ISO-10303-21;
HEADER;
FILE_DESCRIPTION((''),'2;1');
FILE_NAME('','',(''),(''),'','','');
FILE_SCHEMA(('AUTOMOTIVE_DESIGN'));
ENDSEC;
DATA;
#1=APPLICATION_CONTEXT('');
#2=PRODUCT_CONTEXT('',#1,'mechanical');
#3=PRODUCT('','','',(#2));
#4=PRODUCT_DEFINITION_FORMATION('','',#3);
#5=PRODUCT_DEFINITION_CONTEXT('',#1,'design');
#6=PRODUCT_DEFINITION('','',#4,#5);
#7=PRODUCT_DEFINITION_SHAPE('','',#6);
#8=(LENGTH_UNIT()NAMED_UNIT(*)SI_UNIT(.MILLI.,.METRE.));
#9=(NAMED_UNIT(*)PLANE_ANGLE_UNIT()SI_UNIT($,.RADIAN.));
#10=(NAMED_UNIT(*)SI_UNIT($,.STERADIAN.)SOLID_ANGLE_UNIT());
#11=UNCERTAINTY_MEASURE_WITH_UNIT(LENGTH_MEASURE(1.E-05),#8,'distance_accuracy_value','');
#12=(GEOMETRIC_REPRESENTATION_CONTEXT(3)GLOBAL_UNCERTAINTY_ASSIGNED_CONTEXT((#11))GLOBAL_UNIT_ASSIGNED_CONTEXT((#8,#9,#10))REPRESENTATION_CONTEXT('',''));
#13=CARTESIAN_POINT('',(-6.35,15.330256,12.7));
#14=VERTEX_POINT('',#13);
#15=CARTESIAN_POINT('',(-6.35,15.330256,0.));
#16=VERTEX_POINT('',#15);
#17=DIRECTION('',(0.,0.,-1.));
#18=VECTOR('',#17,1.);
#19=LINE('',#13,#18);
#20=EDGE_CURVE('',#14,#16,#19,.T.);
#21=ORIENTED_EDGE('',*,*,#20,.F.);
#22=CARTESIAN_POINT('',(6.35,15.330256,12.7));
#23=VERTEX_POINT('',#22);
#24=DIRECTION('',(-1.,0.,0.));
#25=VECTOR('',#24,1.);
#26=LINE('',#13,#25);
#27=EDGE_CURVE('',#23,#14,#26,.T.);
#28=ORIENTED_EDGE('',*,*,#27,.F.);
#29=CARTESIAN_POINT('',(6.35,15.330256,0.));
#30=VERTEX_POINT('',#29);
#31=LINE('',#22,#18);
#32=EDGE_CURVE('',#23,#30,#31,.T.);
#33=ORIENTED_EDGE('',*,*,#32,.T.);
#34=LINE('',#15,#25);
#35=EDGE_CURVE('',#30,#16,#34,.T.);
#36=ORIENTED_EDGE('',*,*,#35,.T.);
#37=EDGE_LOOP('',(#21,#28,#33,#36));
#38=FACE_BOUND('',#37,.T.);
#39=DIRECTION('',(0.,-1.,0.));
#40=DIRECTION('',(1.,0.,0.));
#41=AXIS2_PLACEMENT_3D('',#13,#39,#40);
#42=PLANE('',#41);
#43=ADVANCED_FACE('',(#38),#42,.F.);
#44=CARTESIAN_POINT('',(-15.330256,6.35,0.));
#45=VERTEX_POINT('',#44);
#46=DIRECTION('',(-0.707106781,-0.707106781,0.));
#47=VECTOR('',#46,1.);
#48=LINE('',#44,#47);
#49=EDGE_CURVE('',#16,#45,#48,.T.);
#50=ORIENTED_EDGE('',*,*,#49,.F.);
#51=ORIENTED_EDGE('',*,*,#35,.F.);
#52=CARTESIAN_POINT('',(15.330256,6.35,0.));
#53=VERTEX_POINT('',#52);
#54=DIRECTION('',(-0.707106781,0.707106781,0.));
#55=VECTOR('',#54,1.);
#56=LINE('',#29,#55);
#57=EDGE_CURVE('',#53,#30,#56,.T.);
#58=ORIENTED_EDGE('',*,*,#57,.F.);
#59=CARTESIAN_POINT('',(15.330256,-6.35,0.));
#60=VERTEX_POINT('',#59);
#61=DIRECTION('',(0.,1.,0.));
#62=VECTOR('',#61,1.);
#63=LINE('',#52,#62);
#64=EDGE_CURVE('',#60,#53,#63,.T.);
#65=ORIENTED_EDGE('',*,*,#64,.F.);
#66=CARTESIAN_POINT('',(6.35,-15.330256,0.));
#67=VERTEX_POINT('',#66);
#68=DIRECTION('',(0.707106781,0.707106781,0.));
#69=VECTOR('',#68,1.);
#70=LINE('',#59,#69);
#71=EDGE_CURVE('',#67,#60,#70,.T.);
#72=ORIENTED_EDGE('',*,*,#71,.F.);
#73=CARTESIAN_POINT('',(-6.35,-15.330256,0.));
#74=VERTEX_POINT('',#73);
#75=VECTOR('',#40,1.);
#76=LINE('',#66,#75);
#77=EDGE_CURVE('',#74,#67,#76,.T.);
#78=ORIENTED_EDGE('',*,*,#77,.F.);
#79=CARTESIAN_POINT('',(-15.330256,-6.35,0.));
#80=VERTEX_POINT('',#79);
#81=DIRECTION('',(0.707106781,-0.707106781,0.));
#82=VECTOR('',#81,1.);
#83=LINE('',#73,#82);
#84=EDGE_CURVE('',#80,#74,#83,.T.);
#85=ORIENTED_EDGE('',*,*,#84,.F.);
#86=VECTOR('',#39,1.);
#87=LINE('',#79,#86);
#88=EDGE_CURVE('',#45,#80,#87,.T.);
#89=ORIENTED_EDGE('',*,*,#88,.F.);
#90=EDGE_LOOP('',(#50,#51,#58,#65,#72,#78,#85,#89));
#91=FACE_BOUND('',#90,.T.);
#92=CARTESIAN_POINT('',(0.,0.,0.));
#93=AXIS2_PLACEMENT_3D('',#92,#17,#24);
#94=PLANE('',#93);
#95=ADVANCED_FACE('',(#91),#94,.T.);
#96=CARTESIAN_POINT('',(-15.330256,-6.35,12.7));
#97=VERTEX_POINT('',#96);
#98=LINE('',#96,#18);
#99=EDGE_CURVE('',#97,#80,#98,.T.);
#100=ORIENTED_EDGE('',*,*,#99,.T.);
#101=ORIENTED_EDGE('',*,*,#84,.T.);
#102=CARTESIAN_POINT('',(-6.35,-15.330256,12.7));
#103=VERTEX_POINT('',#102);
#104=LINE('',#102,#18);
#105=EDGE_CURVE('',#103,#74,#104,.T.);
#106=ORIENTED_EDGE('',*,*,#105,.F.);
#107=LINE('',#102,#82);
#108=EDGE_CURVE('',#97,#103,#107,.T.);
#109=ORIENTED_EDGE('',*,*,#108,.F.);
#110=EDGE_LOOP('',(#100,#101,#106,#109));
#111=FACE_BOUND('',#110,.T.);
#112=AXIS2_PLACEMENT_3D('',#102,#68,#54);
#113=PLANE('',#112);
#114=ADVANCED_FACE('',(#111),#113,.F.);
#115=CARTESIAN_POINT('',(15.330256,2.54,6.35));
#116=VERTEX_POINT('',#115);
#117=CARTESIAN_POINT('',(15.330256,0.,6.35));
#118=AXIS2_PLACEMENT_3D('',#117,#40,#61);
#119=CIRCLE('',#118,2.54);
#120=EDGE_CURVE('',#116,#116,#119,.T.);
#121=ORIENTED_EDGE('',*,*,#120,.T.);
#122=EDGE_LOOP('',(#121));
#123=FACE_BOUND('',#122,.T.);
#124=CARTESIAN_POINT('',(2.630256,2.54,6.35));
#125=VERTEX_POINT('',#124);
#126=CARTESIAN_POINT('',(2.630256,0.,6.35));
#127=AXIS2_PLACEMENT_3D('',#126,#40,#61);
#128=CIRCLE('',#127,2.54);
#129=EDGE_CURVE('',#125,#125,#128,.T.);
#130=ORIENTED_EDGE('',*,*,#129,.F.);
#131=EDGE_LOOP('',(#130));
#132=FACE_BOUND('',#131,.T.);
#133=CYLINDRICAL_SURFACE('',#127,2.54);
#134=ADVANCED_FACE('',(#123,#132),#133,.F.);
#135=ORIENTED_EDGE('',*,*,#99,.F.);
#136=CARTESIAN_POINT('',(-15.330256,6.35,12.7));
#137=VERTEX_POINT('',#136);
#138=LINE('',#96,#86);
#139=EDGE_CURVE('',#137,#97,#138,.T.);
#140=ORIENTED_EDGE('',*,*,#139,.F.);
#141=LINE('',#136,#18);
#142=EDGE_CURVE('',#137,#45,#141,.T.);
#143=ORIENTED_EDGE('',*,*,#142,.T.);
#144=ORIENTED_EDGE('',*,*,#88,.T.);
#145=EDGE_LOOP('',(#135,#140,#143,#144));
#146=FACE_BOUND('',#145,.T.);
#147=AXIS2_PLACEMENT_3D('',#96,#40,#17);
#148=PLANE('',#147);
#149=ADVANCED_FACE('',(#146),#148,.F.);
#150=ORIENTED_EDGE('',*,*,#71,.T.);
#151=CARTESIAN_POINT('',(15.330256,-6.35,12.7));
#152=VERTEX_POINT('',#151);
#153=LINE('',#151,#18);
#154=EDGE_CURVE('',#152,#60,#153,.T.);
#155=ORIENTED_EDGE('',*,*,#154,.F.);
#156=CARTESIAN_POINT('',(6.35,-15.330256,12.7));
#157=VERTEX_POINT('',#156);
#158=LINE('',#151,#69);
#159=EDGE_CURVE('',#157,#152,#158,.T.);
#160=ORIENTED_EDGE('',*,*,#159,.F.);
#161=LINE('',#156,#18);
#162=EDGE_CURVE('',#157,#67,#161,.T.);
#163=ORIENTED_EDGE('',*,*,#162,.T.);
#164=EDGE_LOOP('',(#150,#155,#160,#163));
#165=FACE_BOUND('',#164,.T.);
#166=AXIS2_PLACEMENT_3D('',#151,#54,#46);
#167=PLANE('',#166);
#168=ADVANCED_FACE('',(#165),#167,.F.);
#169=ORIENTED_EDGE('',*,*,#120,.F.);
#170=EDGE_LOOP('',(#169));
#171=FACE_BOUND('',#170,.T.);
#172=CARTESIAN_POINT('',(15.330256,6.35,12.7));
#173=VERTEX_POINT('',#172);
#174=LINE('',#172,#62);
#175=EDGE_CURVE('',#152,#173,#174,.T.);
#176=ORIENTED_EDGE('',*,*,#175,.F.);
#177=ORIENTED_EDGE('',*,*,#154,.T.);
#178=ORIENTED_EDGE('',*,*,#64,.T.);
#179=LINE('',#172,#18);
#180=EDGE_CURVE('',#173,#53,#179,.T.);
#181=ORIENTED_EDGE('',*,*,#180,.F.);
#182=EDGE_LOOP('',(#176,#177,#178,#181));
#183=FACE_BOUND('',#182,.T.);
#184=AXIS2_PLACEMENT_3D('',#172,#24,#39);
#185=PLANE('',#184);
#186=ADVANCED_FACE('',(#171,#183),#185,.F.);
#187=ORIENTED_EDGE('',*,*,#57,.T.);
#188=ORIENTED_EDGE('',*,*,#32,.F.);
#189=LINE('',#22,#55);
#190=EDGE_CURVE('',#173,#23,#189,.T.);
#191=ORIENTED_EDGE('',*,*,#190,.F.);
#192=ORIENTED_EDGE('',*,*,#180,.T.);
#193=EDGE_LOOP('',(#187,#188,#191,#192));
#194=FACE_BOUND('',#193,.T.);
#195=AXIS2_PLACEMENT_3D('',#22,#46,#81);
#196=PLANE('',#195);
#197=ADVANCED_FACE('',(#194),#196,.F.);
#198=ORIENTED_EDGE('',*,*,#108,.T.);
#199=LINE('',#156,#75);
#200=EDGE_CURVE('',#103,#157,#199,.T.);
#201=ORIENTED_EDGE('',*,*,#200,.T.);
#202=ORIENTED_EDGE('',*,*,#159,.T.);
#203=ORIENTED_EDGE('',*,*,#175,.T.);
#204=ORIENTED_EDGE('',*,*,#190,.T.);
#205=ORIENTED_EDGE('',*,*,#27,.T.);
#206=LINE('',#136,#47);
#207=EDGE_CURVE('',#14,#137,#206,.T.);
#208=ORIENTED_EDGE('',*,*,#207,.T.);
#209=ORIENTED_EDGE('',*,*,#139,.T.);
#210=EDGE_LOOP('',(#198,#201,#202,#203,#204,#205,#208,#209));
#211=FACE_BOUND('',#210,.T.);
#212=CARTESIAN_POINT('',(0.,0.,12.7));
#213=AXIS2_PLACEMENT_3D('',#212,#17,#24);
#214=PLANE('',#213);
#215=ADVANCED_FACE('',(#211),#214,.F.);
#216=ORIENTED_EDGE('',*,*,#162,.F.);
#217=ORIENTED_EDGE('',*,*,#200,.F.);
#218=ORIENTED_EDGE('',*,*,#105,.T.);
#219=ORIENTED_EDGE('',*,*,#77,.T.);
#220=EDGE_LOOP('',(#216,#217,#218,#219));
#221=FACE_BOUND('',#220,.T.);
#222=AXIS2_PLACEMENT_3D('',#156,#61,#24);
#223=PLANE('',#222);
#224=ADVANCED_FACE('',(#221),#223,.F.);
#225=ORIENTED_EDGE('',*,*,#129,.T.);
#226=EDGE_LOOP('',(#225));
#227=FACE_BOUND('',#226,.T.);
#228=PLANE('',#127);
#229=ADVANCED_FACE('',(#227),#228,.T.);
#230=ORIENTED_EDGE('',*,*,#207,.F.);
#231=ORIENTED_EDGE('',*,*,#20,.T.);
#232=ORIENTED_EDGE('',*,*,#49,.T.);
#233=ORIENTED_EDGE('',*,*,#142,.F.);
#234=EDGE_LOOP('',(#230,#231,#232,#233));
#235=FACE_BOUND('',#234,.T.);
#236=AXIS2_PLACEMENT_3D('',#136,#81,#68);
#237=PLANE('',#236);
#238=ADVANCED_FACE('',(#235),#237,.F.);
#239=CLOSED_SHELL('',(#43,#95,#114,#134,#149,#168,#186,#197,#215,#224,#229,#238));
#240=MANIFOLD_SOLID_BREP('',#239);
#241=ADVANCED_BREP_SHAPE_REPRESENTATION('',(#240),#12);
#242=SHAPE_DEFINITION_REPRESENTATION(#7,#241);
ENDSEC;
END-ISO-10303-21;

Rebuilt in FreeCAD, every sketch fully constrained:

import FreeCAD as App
import Part
import Sketcher
Q = App.Units.Quantity

doc = App.newDocument("Part")
body = doc.addObject("PartDesign::Body", "Body")

sketch1 = body.newObject("Sketcher::SketchObject", "Sketch")
sketch1.AttachmentSupport = (doc.getObject("XY_Plane"), [""])
sketch1.MapMode = "FlatFace"
sketch1.addGeometry([
    Part.LineSegment(App.Vector(15.330256, -6.35, 0), App.Vector(15.330256, 6.35, 0)),
    Part.LineSegment(App.Vector(15.330256, 6.35, 0), App.Vector(6.35, 15.330256, 0)),
    Part.LineSegment(App.Vector(6.35, 15.330256, 0), App.Vector(-6.35, 15.330256, 0)),
    Part.LineSegment(App.Vector(-6.35, 15.330256, 0), App.Vector(-15.330256, 6.35, 0)),
    Part.LineSegment(App.Vector(-15.330256, 6.35, 0), App.Vector(-15.330256, -6.35, 0)),
    Part.LineSegment(App.Vector(-15.330256, -6.35, 0), App.Vector(-6.35, -15.330256, 0)),
    Part.LineSegment(App.Vector(-6.35, -15.330256, 0), App.Vector(6.35, -15.330256, 0)),
    Part.LineSegment(App.Vector(6.35, -15.330256, 0), App.Vector(15.330256, -6.35, 0)),
], False)
sketch1.addConstraint([
    Sketcher.Constraint("Coincident", 0, 2, 1, 1),
    Sketcher.Constraint("Coincident", 1, 2, 2, 1),
    Sketcher.Constraint("Coincident", 2, 2, 3, 1),
    Sketcher.Constraint("Coincident", 3, 2, 4, 1),
    Sketcher.Constraint("Coincident", 4, 2, 5, 1),
    Sketcher.Constraint("Coincident", 5, 2, 6, 1),
    Sketcher.Constraint("Coincident", 6, 2, 7, 1),
    Sketcher.Constraint("Coincident", 7, 2, 0, 1),
    Sketcher.Constraint("Vertical", 0),
    Sketcher.Constraint("Horizontal", 2),
    Sketcher.Constraint("Vertical", 4),
    Sketcher.Constraint("Horizontal", 6),
    Sketcher.Constraint("Symmetric", 0, 2, 4, 2, -1, 1),
    Sketcher.Constraint("Symmetric", 1, 2, 5, 2, -1, 1),
    Sketcher.Constraint("Perpendicular", 1, 3),
    Sketcher.Constraint("Perpendicular", 5, 7),
    Sketcher.Constraint("Horizontal", 0, 2, 3, 2),
    Sketcher.Constraint("Horizontal", 4, 2, 7, 2),
    Sketcher.Constraint("Vertical", 2, 2, 5, 2),
    Sketcher.Constraint("Equal", 6, 0),
    Sketcher.Constraint("DistanceX", 2, 2, 2, 1, Q("0.5 in")),
    Sketcher.Constraint("Distance", 1, Q("0.5 in")),
])
pad1 = body.newObject("PartDesign::Pad", "Pad")
pad1.Profile = sketch1
pad1.Length = Q("0.5 in")

sketch2 = body.newObject("Sketcher::SketchObject", "Sketch001")
sketch2.AttachmentSupport = (doc.getObject("YZ_Plane"), [""])
sketch2.MapMode = "FlatFace"
sketch2.AttachmentOffset = App.Placement(App.Vector(0, 0, 15.330256), App.Rotation())
sketch2.addGeometry(Part.Circle(App.Vector(0, 6.35, 0), App.Vector(0, 0, 1), 2.54), False)
sketch2.addConstraint([
    Sketcher.Constraint("PointOnObject", 0, 3, -2),
    Sketcher.Constraint("Diameter", 0, Q("0.2 in")),
    Sketcher.Constraint("DistanceY", -1, 1, 0, 3, Q("0.25 in")),
])
pocket1 = body.newObject("PartDesign::Pocket", "Pocket")
pocket1.Profile = sketch2
pocket1.Length = Q("0.5 in")

doc.recompute()
